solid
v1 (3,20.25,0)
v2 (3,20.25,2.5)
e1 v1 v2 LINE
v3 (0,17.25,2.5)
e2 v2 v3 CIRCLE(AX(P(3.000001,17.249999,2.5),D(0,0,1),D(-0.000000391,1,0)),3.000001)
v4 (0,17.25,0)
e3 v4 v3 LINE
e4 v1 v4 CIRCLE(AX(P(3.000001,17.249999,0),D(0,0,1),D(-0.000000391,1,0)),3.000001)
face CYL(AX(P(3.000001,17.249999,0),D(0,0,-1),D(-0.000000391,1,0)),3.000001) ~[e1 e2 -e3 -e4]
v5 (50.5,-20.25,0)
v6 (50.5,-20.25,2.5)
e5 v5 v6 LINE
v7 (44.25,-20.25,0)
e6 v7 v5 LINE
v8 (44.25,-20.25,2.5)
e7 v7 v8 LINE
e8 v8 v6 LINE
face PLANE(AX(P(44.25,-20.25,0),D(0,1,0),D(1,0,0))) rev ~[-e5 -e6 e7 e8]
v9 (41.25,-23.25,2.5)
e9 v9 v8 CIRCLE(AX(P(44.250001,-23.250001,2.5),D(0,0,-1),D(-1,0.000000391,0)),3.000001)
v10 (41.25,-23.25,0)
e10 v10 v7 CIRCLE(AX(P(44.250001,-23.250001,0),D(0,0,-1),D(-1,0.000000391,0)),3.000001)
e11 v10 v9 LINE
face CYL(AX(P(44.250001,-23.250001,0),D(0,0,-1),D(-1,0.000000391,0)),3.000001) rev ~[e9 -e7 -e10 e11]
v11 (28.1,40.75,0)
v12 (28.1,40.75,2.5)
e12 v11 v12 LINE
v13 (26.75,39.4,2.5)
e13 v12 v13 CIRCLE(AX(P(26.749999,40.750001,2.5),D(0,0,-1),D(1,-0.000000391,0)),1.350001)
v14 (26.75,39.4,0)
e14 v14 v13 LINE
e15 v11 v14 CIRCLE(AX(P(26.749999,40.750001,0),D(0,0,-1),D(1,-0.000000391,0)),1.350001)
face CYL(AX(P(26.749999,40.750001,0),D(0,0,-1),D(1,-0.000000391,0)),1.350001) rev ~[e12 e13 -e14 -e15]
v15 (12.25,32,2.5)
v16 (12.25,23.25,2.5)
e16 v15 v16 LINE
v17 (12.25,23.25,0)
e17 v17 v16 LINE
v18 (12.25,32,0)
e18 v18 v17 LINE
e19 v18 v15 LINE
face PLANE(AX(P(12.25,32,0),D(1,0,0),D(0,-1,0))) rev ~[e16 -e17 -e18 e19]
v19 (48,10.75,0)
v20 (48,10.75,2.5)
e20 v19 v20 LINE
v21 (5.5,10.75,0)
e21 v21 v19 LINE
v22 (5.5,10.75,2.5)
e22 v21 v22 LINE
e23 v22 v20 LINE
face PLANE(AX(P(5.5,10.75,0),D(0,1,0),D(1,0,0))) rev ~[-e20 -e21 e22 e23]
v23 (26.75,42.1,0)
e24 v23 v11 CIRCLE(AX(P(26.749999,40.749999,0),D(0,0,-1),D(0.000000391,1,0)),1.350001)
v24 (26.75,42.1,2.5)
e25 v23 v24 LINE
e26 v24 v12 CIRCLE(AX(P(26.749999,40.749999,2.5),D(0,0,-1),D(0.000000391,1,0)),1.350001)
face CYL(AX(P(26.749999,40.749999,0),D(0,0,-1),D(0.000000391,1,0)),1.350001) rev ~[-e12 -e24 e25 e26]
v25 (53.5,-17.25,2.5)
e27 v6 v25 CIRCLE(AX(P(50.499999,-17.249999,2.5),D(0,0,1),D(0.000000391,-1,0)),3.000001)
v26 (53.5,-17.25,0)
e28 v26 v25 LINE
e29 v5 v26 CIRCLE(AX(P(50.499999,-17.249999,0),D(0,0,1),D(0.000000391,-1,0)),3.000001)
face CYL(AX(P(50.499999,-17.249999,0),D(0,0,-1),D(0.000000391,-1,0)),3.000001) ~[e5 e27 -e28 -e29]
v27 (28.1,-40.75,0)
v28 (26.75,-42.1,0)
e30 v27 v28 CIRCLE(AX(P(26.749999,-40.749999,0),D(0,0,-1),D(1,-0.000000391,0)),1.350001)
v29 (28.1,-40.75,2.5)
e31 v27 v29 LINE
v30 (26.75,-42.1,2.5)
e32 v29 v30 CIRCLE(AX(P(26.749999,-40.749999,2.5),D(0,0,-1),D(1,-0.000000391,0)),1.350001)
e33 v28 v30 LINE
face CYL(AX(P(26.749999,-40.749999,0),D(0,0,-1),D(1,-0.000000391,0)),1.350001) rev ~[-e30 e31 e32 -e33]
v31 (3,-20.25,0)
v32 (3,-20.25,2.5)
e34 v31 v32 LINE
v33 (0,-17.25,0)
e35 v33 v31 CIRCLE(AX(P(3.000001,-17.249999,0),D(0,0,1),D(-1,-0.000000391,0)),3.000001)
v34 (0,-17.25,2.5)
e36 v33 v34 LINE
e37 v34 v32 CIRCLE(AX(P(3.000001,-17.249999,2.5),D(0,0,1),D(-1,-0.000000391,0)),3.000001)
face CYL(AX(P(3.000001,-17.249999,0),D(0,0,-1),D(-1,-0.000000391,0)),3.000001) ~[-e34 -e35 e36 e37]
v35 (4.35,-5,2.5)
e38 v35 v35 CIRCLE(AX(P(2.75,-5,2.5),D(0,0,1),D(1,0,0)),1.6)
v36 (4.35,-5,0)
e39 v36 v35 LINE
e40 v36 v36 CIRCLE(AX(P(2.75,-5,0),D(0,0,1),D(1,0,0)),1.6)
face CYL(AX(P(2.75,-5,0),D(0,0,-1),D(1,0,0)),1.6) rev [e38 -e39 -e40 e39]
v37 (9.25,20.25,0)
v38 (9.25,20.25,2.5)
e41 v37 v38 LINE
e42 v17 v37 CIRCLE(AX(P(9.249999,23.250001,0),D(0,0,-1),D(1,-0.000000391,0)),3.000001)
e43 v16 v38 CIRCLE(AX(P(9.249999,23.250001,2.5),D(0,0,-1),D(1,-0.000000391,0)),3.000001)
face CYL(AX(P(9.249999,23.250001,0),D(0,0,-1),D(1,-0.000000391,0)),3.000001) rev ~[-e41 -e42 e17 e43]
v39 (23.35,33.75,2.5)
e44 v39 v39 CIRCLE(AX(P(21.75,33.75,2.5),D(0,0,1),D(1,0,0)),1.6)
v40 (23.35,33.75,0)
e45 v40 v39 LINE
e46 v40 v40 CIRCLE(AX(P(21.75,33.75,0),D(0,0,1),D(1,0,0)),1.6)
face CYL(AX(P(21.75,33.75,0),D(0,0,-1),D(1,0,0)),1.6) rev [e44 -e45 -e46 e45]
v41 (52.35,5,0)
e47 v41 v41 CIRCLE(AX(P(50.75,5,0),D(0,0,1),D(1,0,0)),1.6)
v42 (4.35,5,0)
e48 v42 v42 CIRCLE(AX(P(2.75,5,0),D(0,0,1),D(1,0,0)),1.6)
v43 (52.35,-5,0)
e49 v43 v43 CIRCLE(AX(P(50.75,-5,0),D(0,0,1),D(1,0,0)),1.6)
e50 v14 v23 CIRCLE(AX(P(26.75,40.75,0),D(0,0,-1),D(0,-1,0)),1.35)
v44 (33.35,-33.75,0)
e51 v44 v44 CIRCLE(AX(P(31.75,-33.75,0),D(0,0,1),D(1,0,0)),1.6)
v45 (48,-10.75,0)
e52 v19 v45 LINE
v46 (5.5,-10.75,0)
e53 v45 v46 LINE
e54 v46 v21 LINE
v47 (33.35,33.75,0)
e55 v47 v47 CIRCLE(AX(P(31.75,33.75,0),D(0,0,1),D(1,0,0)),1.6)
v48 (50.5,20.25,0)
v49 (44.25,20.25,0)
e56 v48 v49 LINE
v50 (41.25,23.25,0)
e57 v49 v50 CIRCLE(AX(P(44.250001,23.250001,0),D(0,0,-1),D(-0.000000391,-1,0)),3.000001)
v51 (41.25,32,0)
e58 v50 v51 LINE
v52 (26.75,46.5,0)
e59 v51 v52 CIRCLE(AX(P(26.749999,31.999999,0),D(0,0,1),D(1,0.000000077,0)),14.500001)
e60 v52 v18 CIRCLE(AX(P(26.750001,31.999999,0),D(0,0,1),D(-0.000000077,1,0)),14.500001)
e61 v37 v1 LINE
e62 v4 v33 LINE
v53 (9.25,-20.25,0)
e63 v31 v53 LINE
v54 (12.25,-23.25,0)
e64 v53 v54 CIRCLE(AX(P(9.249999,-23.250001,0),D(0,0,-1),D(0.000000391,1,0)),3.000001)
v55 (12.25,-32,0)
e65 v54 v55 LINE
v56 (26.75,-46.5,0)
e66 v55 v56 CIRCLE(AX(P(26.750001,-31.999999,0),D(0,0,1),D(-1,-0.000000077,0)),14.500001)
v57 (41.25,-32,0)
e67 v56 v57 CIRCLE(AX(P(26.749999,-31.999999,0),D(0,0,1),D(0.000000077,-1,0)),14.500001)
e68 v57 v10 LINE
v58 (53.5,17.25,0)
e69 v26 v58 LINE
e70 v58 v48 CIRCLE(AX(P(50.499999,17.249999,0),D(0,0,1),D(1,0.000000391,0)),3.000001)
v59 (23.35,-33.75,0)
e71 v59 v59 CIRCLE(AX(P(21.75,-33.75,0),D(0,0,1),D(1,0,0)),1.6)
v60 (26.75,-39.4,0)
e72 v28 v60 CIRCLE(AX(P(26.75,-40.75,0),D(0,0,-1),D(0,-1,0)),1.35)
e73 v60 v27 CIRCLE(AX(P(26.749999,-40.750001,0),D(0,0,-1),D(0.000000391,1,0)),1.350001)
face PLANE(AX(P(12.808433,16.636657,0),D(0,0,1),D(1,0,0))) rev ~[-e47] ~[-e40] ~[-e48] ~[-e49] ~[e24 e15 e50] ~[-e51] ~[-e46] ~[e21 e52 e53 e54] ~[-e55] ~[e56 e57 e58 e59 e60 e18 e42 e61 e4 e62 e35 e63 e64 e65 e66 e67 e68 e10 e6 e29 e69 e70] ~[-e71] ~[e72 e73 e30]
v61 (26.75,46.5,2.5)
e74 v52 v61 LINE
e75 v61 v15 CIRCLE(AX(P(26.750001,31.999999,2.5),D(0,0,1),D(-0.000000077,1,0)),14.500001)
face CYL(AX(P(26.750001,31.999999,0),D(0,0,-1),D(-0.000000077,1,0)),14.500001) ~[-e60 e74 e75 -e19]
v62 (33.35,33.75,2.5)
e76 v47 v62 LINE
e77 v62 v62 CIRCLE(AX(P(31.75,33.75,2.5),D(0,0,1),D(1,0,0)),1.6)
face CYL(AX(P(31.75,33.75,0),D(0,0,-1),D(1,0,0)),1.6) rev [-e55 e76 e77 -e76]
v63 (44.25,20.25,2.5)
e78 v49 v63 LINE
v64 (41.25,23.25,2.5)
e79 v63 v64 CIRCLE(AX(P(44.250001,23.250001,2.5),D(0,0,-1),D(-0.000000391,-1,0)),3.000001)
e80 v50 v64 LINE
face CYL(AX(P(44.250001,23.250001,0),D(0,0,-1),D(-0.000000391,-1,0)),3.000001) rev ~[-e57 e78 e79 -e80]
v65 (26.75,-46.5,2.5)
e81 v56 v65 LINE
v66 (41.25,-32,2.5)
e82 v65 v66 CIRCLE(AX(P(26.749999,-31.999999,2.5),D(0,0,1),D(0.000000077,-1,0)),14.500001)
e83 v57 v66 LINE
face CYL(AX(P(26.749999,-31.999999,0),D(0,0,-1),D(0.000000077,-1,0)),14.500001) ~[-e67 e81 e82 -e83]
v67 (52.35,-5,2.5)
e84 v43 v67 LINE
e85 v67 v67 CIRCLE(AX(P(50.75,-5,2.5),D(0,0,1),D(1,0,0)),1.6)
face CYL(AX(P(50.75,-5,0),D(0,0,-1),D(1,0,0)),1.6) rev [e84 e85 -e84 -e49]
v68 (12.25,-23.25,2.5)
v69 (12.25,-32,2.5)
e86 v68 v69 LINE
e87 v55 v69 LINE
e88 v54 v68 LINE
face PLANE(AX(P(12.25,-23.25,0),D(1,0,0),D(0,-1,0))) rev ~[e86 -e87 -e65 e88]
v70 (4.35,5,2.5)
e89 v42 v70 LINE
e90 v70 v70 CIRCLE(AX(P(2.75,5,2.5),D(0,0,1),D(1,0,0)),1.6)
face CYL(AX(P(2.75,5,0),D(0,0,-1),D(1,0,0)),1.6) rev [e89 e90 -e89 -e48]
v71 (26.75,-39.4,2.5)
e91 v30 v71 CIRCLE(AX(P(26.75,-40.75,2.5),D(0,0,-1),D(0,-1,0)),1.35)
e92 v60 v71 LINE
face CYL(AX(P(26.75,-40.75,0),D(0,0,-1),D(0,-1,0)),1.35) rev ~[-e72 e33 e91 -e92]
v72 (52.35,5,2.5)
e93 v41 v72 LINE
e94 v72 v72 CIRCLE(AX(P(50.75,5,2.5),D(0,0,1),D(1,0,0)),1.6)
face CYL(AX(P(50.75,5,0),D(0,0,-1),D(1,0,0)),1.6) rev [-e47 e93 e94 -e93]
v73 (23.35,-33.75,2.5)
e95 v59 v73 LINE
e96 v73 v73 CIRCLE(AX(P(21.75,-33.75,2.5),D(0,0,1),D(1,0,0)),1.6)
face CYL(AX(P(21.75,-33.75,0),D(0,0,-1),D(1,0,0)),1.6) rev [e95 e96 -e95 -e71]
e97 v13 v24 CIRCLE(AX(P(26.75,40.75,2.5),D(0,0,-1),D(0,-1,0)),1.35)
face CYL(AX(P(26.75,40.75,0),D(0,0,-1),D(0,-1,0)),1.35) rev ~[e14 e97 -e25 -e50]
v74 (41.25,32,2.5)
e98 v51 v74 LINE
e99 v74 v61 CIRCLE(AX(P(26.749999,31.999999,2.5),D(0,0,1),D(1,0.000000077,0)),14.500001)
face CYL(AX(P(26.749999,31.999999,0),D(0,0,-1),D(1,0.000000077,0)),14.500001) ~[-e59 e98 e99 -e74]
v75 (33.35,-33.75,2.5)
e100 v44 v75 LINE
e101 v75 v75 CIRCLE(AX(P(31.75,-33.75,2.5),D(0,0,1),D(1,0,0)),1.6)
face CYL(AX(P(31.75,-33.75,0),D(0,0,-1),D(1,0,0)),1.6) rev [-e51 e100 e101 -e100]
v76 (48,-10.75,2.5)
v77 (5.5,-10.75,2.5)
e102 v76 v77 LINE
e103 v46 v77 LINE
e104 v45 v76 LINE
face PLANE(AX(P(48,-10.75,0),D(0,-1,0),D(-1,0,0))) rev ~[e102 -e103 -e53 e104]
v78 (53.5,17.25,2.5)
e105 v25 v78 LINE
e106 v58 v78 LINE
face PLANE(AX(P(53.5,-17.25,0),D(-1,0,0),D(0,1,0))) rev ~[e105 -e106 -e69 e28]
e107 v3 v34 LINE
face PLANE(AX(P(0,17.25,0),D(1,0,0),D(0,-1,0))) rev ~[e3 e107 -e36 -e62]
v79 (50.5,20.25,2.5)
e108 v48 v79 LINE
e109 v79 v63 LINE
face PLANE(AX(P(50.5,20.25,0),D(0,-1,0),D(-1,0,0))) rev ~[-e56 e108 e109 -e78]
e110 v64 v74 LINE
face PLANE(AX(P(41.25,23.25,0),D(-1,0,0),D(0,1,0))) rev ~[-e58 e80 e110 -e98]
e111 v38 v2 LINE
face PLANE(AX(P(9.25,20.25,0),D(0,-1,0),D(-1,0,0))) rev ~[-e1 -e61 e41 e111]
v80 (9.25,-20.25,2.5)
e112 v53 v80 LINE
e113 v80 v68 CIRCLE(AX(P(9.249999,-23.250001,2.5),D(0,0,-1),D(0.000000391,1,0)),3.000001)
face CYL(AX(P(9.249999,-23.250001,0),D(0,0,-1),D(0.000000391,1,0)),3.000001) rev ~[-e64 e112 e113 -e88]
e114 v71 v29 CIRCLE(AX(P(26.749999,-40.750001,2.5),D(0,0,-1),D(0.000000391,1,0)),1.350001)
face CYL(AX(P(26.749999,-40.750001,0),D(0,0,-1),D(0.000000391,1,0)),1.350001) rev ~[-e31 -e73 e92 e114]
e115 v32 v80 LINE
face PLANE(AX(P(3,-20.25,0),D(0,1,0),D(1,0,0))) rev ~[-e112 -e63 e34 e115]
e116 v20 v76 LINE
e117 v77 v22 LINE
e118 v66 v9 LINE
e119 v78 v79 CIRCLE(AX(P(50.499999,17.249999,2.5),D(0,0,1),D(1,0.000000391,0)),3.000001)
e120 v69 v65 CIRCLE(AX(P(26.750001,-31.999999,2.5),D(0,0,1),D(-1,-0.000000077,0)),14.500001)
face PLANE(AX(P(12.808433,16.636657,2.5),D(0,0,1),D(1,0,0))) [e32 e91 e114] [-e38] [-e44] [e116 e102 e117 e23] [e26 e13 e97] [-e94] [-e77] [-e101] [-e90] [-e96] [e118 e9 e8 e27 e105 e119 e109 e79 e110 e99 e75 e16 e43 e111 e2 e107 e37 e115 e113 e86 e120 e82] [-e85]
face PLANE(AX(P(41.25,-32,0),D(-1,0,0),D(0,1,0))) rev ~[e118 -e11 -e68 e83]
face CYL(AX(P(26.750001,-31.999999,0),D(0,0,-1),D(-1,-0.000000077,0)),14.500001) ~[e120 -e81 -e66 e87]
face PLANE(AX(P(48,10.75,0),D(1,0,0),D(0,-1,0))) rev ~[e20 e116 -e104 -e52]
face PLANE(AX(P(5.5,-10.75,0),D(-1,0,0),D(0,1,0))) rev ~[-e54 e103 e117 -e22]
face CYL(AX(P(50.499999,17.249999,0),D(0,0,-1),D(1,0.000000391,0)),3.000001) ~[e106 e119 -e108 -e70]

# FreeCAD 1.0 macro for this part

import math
import FreeCAD as App
import Part
import Sketcher

V = App.Vector


def add_polygon(sketch, points):
    """Adds a closed chain of lines whose ends are joined by coincident constraints."""
    first, n = sketch.GeometryCount, len(points)
    for a, b in zip(points, points[1:] + points[:1]):
        sketch.addGeometry(Part.LineSegment(App.Vector(*a, 0), App.Vector(*b, 0)), False)
    for i in range(n):
        sketch.addConstraint(Sketcher.Constraint("Coincident", first + i, 2, first + (i + 1) % n, 1))

doc = App.newDocument("Part")
body = doc.addObject("PartDesign::Body", "Body")

# Sketch on XY plane
sketch1 = body.newObject("Sketcher::SketchObject", "Sketch")
sketch1.AttachmentSupport = (doc.getObject("XY_Plane"), [""])
sketch1.MapMode = "FlatFace"
sketch1.addGeometry(Part.LineSegment(V(0, 17.2, 0), V(0, -17.2, 0)), False)  # 0
sketch1.addGeometry(Part.ArcOfCircle(Part.Circle(V(3, -17.2, 0), V(0, 0, 1), 3), math.radians(-180), math.radians(-90)), False)  # 1
sketch1.addGeometry(Part.LineSegment(V(3, -20.2, 0), V(9.2, -20.2, 0)), False)  # 2
sketch1.addGeometry(Part.ArcOfCircle(Part.Circle(V(9.2, -23.3, 0), V(0, 0, 1), 3), math.radians(0), math.radians(90)), False)  # 3
sketch1.addGeometry(Part.LineSegment(V(12.2, -23.2, 0), V(12.2, -32, 0)), False)  # 4
sketch1.addGeometry(Part.ArcOfCircle(Part.Circle(V(26.8, -32, 0), V(0, 0, 1), 14.5), math.radians(-180), math.radians(-90)), False)  # 5
sketch1.addGeometry(Part.ArcOfCircle(Part.Circle(V(26.7, -32, 0), V(0, 0, 1), 14.5), math.radians(-90), math.radians(0)), False)  # 6
sketch1.addGeometry(Part.LineSegment(V(41.2, -32, 0), V(41.2, -23.2, 0)), False)  # 7
sketch1.addGeometry(Part.ArcOfCircle(Part.Circle(V(44.3, -23.3, 0), V(0, 0, 1), 3), math.radians(90), math.radians(180)), False)  # 8
sketch1.addGeometry(Part.LineSegment(V(44.2, -20.2, 0), V(50.5, -20.2, 0)), False)  # 9
sketch1.addGeometry(Part.ArcOfCircle(Part.Circle(V(50.5, -17.2, 0), V(0, 0, 1), 3), math.radians(-90), math.radians(0)), False)  # 10
sketch1.addGeometry(Part.LineSegment(V(53.5, -17.2, 0), V(53.5, 17.2, 0)), False)  # 11
sketch1.addGeometry(Part.ArcOfCircle(Part.Circle(V(50.5, 17.2, 0), V(0, 0, 1), 3), math.radians(0), math.radians(90)), False)  # 12
sketch1.addGeometry(Part.LineSegment(V(50.5, 20.2, 0), V(44.2, 20.2, 0)), False)  # 13
sketch1.addGeometry(Part.ArcOfCircle(Part.Circle(V(44.3, 23.3, 0), V(0, 0, 1), 3), math.radians(-180), math.radians(-90)), False)  # 14
sketch1.addGeometry(Part.LineSegment(V(41.2, 23.2, 0), V(41.2, 32, 0)), False)  # 15
sketch1.addGeometry(Part.ArcOfCircle(Part.Circle(V(26.7, 32, 0), V(0, 0, 1), 14.5), math.radians(0), math.radians(90)), False)  # 16
sketch1.addGeometry(Part.ArcOfCircle(Part.Circle(V(26.8, 32, 0), V(0, 0, 1), 14.5), math.radians(90), math.radians(180)), False)  # 17
sketch1.addGeometry(Part.LineSegment(V(12.2, 32, 0), V(12.2, 23.2, 0)), False)  # 18
sketch1.addGeometry(Part.ArcOfCircle(Part.Circle(V(9.2, 23.3, 0), V(0, 0, 1), 3), math.radians(-90), math.radians(0)), False)  # 19
sketch1.addGeometry(Part.LineSegment(V(9.2, 20.2, 0), V(3, 20.2, 0)), False)  # 20
sketch1.addGeometry(Part.ArcOfCircle(Part.Circle(V(3, 17.2, 0), V(0, 0, 1), 3), math.radians(90), math.radians(180)), False)  # 21
sketch1.addGeometry(Part.ArcOfCircle(Part.Circle(V(26.7, -40.8, 0), V(0, 0, 1), 1.4), math.radians(0), math.radians(90)), False)  # 22
sketch1.addGeometry(Part.ArcOfCircle(Part.Circle(V(26.7, -40.7, 0), V(0, 0, 1), 1.4), math.radians(-90), math.radians(0)), False)  # 23
sketch1.addGeometry(Part.ArcOfCircle(Part.Circle(V(26.8, -40.8, 0), V(0, 0, 1), 1.4), math.radians(90), math.radians(270)), False)  # 24
sketch1.addGeometry(Part.Circle(V(21.8, -33.8, 0), V(0, 0, 1), 1.6), False)  # 25
sketch1.addGeometry(Part.Circle(V(2.8, -5, 0), V(0, 0, 1), 1.6), False)  # 26
sketch1.addGeometry(Part.Circle(V(31.8, -33.8, 0), V(0, 0, 1), 1.6), False)  # 27
sketch1.addGeometry(Part.Circle(V(50.8, -5, 0), V(0, 0, 1), 1.6), False)  # 28
sketch1.addGeometry(Part.Circle(V(2.8, 5, 0), V(0, 0, 1), 1.6), False)  # 29
add_polygon(sketch1, [(5.5, -10.8), (5.5, 10.8), (48, 10.8), (48, -10.8)])  # lines 30-33
sketch1.addGeometry(Part.Circle(V(21.8, 33.8, 0), V(0, 0, 1), 1.6), False)  # 34
sketch1.addGeometry(Part.ArcOfCircle(Part.Circle(V(26.8, 40.8, 0), V(0, 0, 1), 1.4), math.radians(90), math.radians(270)), False)  # 35
sketch1.addGeometry(Part.ArcOfCircle(Part.Circle(V(26.7, 40.7, 0), V(0, 0, 1), 1.4), math.radians(0), math.radians(90)), False)  # 36
sketch1.addGeometry(Part.ArcOfCircle(Part.Circle(V(26.7, 40.8, 0), V(0, 0, 1), 1.4), math.radians(-90), math.radians(0)), False)  # 37
sketch1.addGeometry(Part.Circle(V(50.8, 5, 0), V(0, 0, 1), 1.6), False)  # 38
sketch1.addGeometry(Part.Circle(V(31.8, 33.8, 0), V(0, 0, 1), 1.6), False)  # 39
sketch1.addConstraint([
    Sketcher.Constraint("Tangent", 0, 2, 1, 1),
    Sketcher.Constraint("Tangent", 1, 2, 2, 1),
    Sketcher.Constraint("Tangent", 2, 2, 3, 2),
    Sketcher.Constraint("Tangent", 3, 1, 4, 1),
    Sketcher.Constraint("Tangent", 4, 2, 5, 1),
    Sketcher.Constraint("Tangent", 5, 2, 6, 1),
    Sketcher.Constraint("Tangent", 6, 2, 7, 1),
    Sketcher.Constraint("Tangent", 7, 2, 8, 2),
    Sketcher.Constraint("Tangent", 8, 1, 9, 1),
    Sketcher.Constraint("Tangent", 9, 2, 10, 1),
    Sketcher.Constraint("Tangent", 10, 2, 11, 1),
    Sketcher.Constraint("Tangent", 11, 2, 12, 1),
    Sketcher.Constraint("Tangent", 12, 2, 13, 1),
    Sketcher.Constraint("Tangent", 13, 2, 14, 2),
    Sketcher.Constraint("Tangent", 14, 1, 15, 1),
    Sketcher.Constraint("Tangent", 15, 2, 16, 1),
    Sketcher.Constraint("Tangent", 16, 2, 17, 1),
    Sketcher.Constraint("Tangent", 17, 2, 18, 1),
    Sketcher.Constraint("Tangent", 18, 2, 19, 2),
    Sketcher.Constraint("Tangent", 19, 1, 20, 1),
    Sketcher.Constraint("Tangent", 20, 2, 21, 1),
    Sketcher.Constraint("Tangent", 21, 2, 0, 1),
    Sketcher.Constraint("Tangent", 22, 1, 23, 2),
    Sketcher.Constraint("Tangent", 23, 1, 24, 2),
    Sketcher.Constraint("Tangent", 24, 1, 22, 2),
    Sketcher.Constraint("Tangent", 35, 1, 36, 2),
    Sketcher.Constraint("Tangent", 36, 1, 37, 2),
    Sketcher.Constraint("Tangent", 37, 1, 35, 2),
    Sketcher.Constraint("Vertical", 0),
    Sketcher.Constraint("Horizontal", 2),
    Sketcher.Constraint("Vertical", 4),
    Sketcher.Constraint("Vertical", 7),
    Sketcher.Constraint("Horizontal", 9),
    Sketcher.Constraint("Vertical", 11),
    Sketcher.Constraint("Horizontal", 13),
    Sketcher.Constraint("Vertical", 15),
    Sketcher.Constraint("Vertical", 18),
    Sketcher.Constraint("Horizontal", 20),
    Sketcher.Constraint("Vertical", 30),
    Sketcher.Constraint("Horizontal", 31),
    Sketcher.Constraint("Vertical", 32),
    Sketcher.Constraint("Horizontal", 33),
    Sketcher.Constraint("Equal", 1, 3),
    Sketcher.Constraint("Equal", 5, 6),
    Sketcher.Constraint("Equal", 3, 8),
    Sketcher.Constraint("Equal", 8, 10),
    Sketcher.Constraint("Equal", 10, 12),
    Sketcher.Constraint("Equal", 12, 14),
    Sketcher.Constraint("Equal", 6, 16),
    Sketcher.Constraint("Equal", 16, 17),
    Sketcher.Constraint("Equal", 14, 19),
    Sketcher.Constraint("Equal", 19, 21),
    Sketcher.Constraint("Equal", 25, 26),
    Sketcher.Constraint("Equal", 26, 27),
    Sketcher.Constraint("Equal", 27, 28),
    Sketcher.Constraint("Equal", 28, 29),
    Sketcher.Constraint("Equal", 29, 34),
    Sketcher.Constraint("Equal", 24, 35),
    Sketcher.Constraint("Equal", 34, 38),
    Sketcher.Constraint("Equal", 38, 39),
    Sketcher.Constraint("Symmetric", 0, 2, 21, 2, -1, 1),
    Sketcher.Constraint("Symmetric", 8, 3, 14, 3, -1),
    Sketcher.Constraint("Symmetric", 26, 3, 29, 3, -1),
    Sketcher.Constraint("Symmetric", 25, 3, 34, 3, -1),
    Sketcher.Constraint("Symmetric", 22, 3, 35, 3, -1),
    Sketcher.Constraint("Symmetric", 28, 3, 38, 3, -1),
    Sketcher.Constraint("Symmetric", 27, 3, 39, 3, -1),
    Sketcher.Constraint("Symmetric", 5, 2, 16, 2, -1),
    Sketcher.Constraint("Horizontal", 3, 3, 8, 3),
    Sketcher.Constraint("Horizontal", 25, 3, 27, 3),
    Sketcher.Constraint("Horizontal", 26, 3, 28, 3),
    Sketcher.Constraint("Horizontal", 24, 3, 22, 1),
    Sketcher.Constraint("Horizontal", 37, 3, 36, 1),
    Sketcher.Constraint("Vertical", 17, 3, 22, 3),
    Sketcher.Constraint("Vertical", 37, 3, 5, 2),
    Sketcher.Constraint("Vertical", 16, 2, 23, 1),
    Sketcher.Constraint("Vertical", 23, 1, 24, 1),
    Sketcher.Constraint("Vertical", 24, 1, 35, 1),
    Sketcher.Constraint("Vertical", 35, 1, 37, 1),
    Sketcher.Constraint("Equal", 2, 9),
    Sketcher.Constraint("Radius", 1, 3.000001),
    Sketcher.Constraint("Diameter", 25, 3.2),
    Sketcher.Constraint("Radius", 5, 14.500001),
    Sketcher.Constraint("Radius", 22, 1.350001),
    Sketcher.Constraint("DistanceX", 31, 1, 31, 2, 42.5),
    Sketcher.Constraint("DistanceY", 0, 2, 0, 1, 34.5),
    Sketcher.Constraint("DistanceY", 30, 1, 30, 2, 21.5),
    Sketcher.Constraint("DistanceY", 5, 3, -1, 1, 31.999999),
    Sketcher.Constraint("DistanceY", 26, 3, -1, 1, 5.0),
    Sketcher.Constraint("DistanceX", -1, 1, 31, 2, 48.0),
    Sketcher.Constraint("DistanceX", 25, 3, 6, 3, 4.999999),
    Sketcher.Constraint("DistanceY", 23, 3, 25, 3, 6.999999),
    Sketcher.Constraint("DistanceX", 26, 3, 25, 3, 19.0),
    Sketcher.Constraint("DistanceX", 5, 3, 27, 3, 4.999999),
    Sketcher.Constraint("DistanceX", 27, 3, 28, 3, 19.0),
    Sketcher.Constraint("DistanceX", 2, 1, 2, 2, 6.25),
    Sketcher.Constraint("DistanceY", 23, 1, -1, 1, 42.1),
    Sketcher.Constraint("DistanceY", 30, 2, 21, 3, 6.499999),
])
pad1 = body.newObject("PartDesign::Pad", "Pad")
pad1.Profile = sketch1
pad1.Length = 2.5

doc.recompute()
